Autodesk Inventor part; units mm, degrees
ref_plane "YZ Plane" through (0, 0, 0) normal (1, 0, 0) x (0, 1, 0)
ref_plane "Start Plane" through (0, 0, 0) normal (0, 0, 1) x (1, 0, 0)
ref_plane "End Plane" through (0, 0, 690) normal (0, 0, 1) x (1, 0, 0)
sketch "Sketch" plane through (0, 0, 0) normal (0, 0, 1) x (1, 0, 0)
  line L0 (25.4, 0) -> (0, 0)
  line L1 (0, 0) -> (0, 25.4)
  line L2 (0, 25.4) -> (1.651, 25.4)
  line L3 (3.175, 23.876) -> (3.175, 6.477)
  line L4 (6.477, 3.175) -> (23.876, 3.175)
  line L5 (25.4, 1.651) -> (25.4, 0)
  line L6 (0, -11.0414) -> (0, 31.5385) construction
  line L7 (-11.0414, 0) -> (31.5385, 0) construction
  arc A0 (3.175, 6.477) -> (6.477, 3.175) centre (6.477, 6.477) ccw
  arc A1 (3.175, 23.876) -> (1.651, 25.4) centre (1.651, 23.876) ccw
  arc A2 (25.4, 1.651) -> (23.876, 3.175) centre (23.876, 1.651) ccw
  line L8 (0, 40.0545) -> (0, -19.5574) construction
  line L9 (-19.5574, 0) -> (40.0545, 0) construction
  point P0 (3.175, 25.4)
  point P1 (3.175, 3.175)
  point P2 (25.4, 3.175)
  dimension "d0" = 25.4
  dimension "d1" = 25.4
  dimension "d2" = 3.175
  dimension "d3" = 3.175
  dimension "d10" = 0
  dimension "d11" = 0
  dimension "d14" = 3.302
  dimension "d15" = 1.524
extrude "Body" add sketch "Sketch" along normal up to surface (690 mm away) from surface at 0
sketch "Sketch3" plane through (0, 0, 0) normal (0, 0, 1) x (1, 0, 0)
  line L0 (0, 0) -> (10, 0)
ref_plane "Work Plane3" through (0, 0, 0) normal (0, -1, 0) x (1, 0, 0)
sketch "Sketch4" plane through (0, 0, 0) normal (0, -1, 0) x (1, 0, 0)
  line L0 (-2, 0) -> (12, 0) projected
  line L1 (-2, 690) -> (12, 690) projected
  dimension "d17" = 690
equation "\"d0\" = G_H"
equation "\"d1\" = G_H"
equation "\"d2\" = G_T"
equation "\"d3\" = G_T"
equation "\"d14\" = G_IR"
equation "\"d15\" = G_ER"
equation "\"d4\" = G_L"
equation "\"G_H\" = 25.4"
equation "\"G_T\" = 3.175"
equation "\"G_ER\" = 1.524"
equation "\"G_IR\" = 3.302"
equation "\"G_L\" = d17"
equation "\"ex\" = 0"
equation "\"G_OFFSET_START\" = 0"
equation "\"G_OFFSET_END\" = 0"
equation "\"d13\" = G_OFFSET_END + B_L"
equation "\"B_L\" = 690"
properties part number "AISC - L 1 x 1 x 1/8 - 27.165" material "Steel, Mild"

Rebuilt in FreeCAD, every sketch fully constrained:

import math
import FreeCAD as App
import Part
import Sketcher

V = App.Vector
Q = App.Units.Quantity

doc = App.newDocument("Part")
body = doc.addObject("PartDesign::Body", "Body")

# Sketch on XY plane
sketch1 = body.newObject("Sketcher::SketchObject", "Sketch")
sketch1.AttachmentSupport = (doc.getObject("XY_Plane"), [""])
sketch1.MapMode = "FlatFace"
sketch1.addGeometry([
    Part.LineSegment(V(0, 0, 0), V(25.4, 0, 0)),  # 0
    Part.LineSegment(V(25.4, 0, 0), V(25.4, 1.7, 0)),  # 1
    Part.ArcOfCircle(Part.Circle(V(23.9, 1.7, 0), V(0, 0, 1), 1.5), math.radians(0), math.radians(90)),  # 2
    Part.LineSegment(V(23.9, 3.2, 0), V(6.5, 3.2, 0)),  # 3
    Part.ArcOfCircle(Part.Circle(V(6.5, 6.5, 0), V(0, 0, 1), 3.3), math.radians(180), math.radians(270)),  # 4
    Part.LineSegment(V(3.2, 6.5, 0), V(3.2, 23.9, 0)),  # 5
    Part.ArcOfCircle(Part.Circle(V(1.7, 23.9, 0), V(0, 0, 1), 1.5), math.radians(0), math.radians(90)),  # 6
    Part.LineSegment(V(1.7, 25.4, 0), V(0, 25.4, 0)),  # 7
    Part.LineSegment(V(0, 25.4, 0), V(0, 0, 0)),  # 8
], False)
sketch1.addConstraint([
    Sketcher.Constraint("Coincident", 0, 2, 1, 1),
    Sketcher.Constraint("Tangent", 1, 2, 2, 1),
    Sketcher.Constraint("Tangent", 2, 2, 3, 1),
    Sketcher.Constraint("Tangent", 3, 2, 4, 2),
    Sketcher.Constraint("Tangent", 4, 1, 5, 1),
    Sketcher.Constraint("Tangent", 5, 2, 6, 1),
    Sketcher.Constraint("Tangent", 6, 2, 7, 1),
    Sketcher.Constraint("Coincident", 7, 2, 8, 1),
    Sketcher.Constraint("Coincident", 8, 2, 0, 1),
    Sketcher.Constraint("Horizontal", 0),
    Sketcher.Constraint("Vertical", 1),
    Sketcher.Constraint("Horizontal", 3),
    Sketcher.Constraint("Vertical", 5),
    Sketcher.Constraint("Horizontal", 7),
    Sketcher.Constraint("Vertical", 8),
    Sketcher.Constraint("Coincident", 8, 2, -1, 1),
    Sketcher.Constraint("Equal", 2, 6),
    Sketcher.Constraint("Equal", 7, 1),
    Sketcher.Constraint("Equal", 3, 5),
    Sketcher.Constraint("DistanceX", 0, 1, 0, 2, Q("1 in")),
    Sketcher.Constraint("Radius", 2, Q("0.06 in")),
    Sketcher.Constraint("Radius", 4, Q("0.13 in")),
    Sketcher.Constraint("DistanceY", -1, 1, 2, 2, Q("0.125 in")),
])
pad1 = body.newObject("PartDesign::Pad", "Pad")
pad1.Profile = sketch1
pad1.Length = 690

doc.recompute()
